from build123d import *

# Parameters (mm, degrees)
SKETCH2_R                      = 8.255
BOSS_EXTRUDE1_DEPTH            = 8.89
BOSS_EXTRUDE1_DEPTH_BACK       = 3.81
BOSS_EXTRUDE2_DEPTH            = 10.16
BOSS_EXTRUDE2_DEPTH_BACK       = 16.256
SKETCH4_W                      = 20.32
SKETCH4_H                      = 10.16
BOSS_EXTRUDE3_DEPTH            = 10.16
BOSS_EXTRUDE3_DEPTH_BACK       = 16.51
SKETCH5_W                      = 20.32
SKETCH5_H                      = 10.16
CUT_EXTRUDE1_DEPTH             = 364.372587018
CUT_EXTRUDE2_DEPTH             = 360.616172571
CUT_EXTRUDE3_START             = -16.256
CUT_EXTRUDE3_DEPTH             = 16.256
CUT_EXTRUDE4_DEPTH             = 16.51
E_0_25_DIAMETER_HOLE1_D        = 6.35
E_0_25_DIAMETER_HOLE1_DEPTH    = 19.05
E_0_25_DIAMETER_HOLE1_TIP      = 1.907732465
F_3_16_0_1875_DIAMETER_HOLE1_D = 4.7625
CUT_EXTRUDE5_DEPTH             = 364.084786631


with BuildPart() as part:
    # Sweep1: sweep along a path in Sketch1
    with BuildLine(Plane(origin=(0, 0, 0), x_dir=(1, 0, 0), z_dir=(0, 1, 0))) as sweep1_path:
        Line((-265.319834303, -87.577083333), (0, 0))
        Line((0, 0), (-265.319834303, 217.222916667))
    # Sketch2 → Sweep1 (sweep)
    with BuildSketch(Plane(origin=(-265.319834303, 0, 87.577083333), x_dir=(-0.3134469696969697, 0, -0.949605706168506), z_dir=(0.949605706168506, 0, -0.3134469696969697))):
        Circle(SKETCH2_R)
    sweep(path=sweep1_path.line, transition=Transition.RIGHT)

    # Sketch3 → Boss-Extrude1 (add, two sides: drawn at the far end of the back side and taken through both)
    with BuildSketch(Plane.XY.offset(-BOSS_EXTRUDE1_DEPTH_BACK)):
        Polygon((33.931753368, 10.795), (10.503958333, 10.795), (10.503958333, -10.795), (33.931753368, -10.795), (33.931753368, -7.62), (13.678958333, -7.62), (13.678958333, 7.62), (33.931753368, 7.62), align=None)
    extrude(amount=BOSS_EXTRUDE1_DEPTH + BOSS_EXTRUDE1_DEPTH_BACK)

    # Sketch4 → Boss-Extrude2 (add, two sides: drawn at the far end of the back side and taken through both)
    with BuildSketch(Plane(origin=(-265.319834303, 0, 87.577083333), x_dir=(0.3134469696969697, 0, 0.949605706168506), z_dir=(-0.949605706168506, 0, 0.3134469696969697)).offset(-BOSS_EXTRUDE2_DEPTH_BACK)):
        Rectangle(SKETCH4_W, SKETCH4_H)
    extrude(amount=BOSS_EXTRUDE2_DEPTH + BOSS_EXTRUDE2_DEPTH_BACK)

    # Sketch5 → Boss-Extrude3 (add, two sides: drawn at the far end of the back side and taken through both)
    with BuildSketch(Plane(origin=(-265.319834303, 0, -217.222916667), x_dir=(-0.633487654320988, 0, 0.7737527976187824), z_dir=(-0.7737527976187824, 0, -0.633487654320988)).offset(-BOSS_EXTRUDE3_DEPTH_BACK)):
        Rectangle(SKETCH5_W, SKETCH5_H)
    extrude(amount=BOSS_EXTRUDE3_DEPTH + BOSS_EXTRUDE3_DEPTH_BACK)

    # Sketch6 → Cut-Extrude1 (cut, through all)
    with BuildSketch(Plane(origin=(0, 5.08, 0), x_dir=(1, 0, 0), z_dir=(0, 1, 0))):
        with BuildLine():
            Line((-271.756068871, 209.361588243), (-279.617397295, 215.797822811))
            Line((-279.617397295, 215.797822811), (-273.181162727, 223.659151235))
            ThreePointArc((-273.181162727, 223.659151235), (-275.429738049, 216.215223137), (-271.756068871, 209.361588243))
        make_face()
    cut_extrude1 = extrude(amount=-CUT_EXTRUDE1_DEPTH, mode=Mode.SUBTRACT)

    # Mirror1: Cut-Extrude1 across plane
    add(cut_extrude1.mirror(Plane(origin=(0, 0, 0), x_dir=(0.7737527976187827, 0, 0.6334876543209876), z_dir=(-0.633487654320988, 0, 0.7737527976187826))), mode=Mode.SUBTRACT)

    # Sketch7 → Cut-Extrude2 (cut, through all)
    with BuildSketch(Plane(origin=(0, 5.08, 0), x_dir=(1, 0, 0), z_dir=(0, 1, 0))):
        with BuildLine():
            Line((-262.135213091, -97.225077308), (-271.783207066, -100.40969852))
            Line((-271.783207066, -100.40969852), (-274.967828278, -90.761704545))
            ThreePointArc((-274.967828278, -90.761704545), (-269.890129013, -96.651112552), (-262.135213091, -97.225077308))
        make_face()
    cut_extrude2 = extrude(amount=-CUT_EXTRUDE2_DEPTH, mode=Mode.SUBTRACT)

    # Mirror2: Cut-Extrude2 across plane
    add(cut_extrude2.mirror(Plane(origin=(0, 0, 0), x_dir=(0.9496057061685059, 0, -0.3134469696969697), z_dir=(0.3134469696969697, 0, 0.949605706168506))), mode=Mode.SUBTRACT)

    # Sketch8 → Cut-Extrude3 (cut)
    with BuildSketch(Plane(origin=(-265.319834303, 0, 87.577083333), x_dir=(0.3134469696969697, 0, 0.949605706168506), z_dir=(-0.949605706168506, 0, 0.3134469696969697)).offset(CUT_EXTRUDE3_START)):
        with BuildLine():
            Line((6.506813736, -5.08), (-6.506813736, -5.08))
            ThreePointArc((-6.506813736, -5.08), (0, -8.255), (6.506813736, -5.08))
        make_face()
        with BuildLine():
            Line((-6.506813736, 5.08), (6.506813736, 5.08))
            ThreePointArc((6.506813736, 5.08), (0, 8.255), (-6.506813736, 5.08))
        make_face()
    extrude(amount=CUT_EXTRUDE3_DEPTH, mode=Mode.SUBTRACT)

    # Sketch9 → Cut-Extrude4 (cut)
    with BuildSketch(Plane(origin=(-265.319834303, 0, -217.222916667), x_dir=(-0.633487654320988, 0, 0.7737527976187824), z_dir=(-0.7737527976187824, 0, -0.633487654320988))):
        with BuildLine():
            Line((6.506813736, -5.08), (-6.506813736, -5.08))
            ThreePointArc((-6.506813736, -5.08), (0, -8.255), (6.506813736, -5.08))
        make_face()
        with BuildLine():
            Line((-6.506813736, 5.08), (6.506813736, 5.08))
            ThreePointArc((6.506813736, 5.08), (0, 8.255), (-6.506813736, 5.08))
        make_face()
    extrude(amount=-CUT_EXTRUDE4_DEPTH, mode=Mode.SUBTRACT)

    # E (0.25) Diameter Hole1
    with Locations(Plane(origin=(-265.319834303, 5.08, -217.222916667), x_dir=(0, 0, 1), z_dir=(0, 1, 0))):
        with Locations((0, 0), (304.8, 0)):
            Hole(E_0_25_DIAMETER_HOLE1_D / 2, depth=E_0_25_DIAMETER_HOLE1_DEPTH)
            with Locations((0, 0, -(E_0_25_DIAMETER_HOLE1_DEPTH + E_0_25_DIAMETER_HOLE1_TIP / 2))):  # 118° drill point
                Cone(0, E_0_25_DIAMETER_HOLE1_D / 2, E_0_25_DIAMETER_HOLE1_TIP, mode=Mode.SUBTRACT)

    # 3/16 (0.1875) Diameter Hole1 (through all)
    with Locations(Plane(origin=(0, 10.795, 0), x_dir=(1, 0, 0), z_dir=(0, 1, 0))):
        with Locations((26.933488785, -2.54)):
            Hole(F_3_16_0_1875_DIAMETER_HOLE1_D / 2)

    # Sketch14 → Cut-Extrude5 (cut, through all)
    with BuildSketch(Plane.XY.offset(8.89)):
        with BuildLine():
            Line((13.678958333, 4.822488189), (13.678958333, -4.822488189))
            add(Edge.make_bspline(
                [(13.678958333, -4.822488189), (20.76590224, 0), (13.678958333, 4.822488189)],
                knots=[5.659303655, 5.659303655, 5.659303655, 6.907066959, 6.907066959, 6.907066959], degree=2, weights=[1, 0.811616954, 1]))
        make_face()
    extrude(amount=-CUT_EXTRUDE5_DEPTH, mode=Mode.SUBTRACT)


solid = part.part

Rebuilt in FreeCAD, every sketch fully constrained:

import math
import FreeCAD as App
import Part
import Sketcher
from FreeCAD import Vector
Q = App.Units.Quantity

doc = App.newDocument("Part")
body = doc.addObject("PartDesign::Body", "Body")

# Sketch on an angled plane
sketch1 = doc.addObject("Sketcher::SketchObject", "Sketch")
body.addObject(sketch1)
sketch1.Placement = App.Placement(Vector(-265.319834, 0, 87.577083), App.Rotation(Vector(-0.31344697, 0, -0.949605706), Vector(0, 1, 0), Vector(0.949605706, 0, -0.31344697), "ZXY"))
sketch1.addGeometry(Part.Circle(Vector(0, 0, 0), Vector(0, 0, 1), 8), False)
sketch1.addConstraint(Sketcher.Constraint("Coincident", 0, 3, -1, 1))
sketch1.addConstraint(Sketcher.Constraint("Diameter", 0, Q("0.65 in")))

# Sketch on XZ plane
sketch2 = doc.addObject("Sketcher::SketchObject", "Sketch001")
body.addObject(sketch2)
sketch2.AttachmentSupport = (doc.XZ_Plane, [""])
sketch2.MapMode = "FlatFace"
sketch2.addGeometry(Part.LineSegment(Vector(-265, 88, 0), Vector(0, 0, 0)), False)
sketch2.addGeometry(Part.LineSegment(Vector(0, 0, 0), Vector(-265, -217, 0)), False)
sketch2.addConstraint(Sketcher.Constraint("Coincident", 0, 2, 1, 1))
sketch2.addConstraint(Sketcher.Constraint("Coincident", 0, 2, -1, 1))
sketch2.addConstraint(Sketcher.Constraint("Vertical", 0, 1, 1, 2))
sketch2.addConstraint(Sketcher.Constraint("Distance", 0, Q("11 in")))
sketch2.addConstraint(Sketcher.Constraint("DistanceY", 1, 2, 0, 1, Q("12 in")))
sketch2.addConstraint(Sketcher.Constraint("Distance", 1, Q("13.5 in")))
doc.recompute()

additivepipe = doc.addObject("PartDesign::AdditivePipe", "AdditivePipe")
body.addObject(additivepipe)
additivepipe.Profile = sketch1
additivepipe.Spine = (sketch2, ["Edge1", "Edge2"])
additivepipe.Transition = "Right corner"

# Sketch on XY plane
sketch3 = doc.addObject("Sketcher::SketchObject", "Sketch002")
body.addObject(sketch3)
sketch3.AttachmentSupport = (doc.XY_Plane, [""])
sketch3.MapMode = "FlatFace"
sketch3.addGeometry(Part.LineSegment(Vector(33.9, 10.8, 0), Vector(10.5, 10.8, 0)), False)
sketch3.addGeometry(Part.LineSegment(Vector(10.5, 10.8, 0), Vector(10.5, -10.8, 0)), False)
sketch3.addGeometry(Part.LineSegment(Vector(10.5, -10.8, 0), Vector(33.9, -10.8, 0)), False)
sketch3.addGeometry(Part.LineSegment(Vector(33.9, -10.8, 0), Vector(33.9, -7.6, 0)), False)
sketch3.addGeometry(Part.LineSegment(Vector(33.9, -7.6, 0), Vector(13.7, -7.6, 0)), False)
sketch3.addGeometry(Part.LineSegment(Vector(13.7, -7.6, 0), Vector(13.7, 7.6, 0)), False)
sketch3.addGeometry(Part.LineSegment(Vector(13.7, 7.6, 0), Vector(33.9, 7.6, 0)), False)
sketch3.addGeometry(Part.LineSegment(Vector(33.9, 7.6, 0), Vector(33.9, 10.8, 0)), False)
sketch3.addConstraint(Sketcher.Constraint("Coincident", 0, 2, 1, 1))
sketch3.addConstraint(Sketcher.Constraint("Coincident", 1, 2, 2, 1))
sketch3.addConstraint(Sketcher.Constraint("Coincident", 2, 2, 3, 1))
sketch3.addConstraint(Sketcher.Constraint("Coincident", 3, 2, 4, 1))
sketch3.addConstraint(Sketcher.Constraint("Coincident", 4, 2, 5, 1))
sketch3.addConstraint(Sketcher.Constraint("Coincident", 5, 2, 6, 1))
sketch3.addConstraint(Sketcher.Constraint("Coincident", 6, 2, 7, 1))
sketch3.addConstraint(Sketcher.Constraint("Coincident", 7, 2, 0, 1))
sketch3.addConstraint(Sketcher.Constraint("Horizontal", 0))
sketch3.addConstraint(Sketcher.Constraint("Vertical", 1))
sketch3.addConstraint(Sketcher.Constraint("Horizontal", 2))
sketch3.addConstraint(Sketcher.Constraint("Vertical", 3))
sketch3.addConstraint(Sketcher.Constraint("Horizontal", 4))
sketch3.addConstraint(Sketcher.Constraint("Vertical", 5))
sketch3.addConstraint(Sketcher.Constraint("Horizontal", 6))
sketch3.addConstraint(Sketcher.Constraint("Vertical", 7))
sketch3.addConstraint(Sketcher.Constraint("Symmetric", 3, 2, 6, 2, -1))
sketch3.addConstraint(Sketcher.Constraint("Equal", 3, 7))
sketch3.addConstraint(Sketcher.Constraint("DistanceY", 5, 1, 5, 2, Q("0.6 in")))
sketch3.addConstraint(Sketcher.Constraint("DistanceY", 1, 2, 1, 1, Q("0.85 in")))
sketch3.addConstraint(Sketcher.Constraint("DistanceX", 1, 2, 4, 2, Q("0.125 in")))
sketch3.addConstraint(Sketcher.Constraint("DistanceX", 0, 2, 0, 1, Q("23.427795 mm")))
sketch3.addConstraint(Sketcher.Constraint("DistanceX", -1, 1, 0, 2, Q("10.503958 mm")))
pad1 = doc.addObject("PartDesign::Pad", "Pad")
body.addObject(pad1)
pad1.Profile = sketch3
pad1.Type = "TwoLengths"
pad1.Length = Q("0.35 in")
pad1.Length2 = Q("0.15 in")

# Sketch on an angled plane
sketch4 = doc.addObject("Sketcher::SketchObject", "Sketch003")
body.addObject(sketch4)
sketch4.Placement = App.Placement(Vector(-265.319834, 0, 87.577083), App.Rotation(Vector(0.31344697, 0, 0.949605706), Vector(0, 1, 0), Vector(-0.949605706, 0, 0.31344697), "ZXY"))
sketch4.addGeometry(Part.LineSegment(Vector(-10, 5, 0), Vector(-10, -5, 0)), False)
sketch4.addGeometry(Part.LineSegment(Vector(-10, -5, 0), Vector(10, -5, 0)), False)
sketch4.addGeometry(Part.LineSegment(Vector(10, -5, 0), Vector(10, 5, 0)), False)
sketch4.addGeometry(Part.LineSegment(Vector(10, 5, 0), Vector(-10, 5, 0)), False)
sketch4.addConstraint(Sketcher.Constraint("Coincident", 0, 2, 1, 1))
sketch4.addConstraint(Sketcher.Constraint("Coincident", 1, 2, 2, 1))
sketch4.addConstraint(Sketcher.Constraint("Coincident", 2, 2, 3, 1))
sketch4.addConstraint(Sketcher.Constraint("Coincident", 3, 2, 0, 1))
sketch4.addConstraint(Sketcher.Constraint("Vertical", 0))
sketch4.addConstraint(Sketcher.Constraint("Horizontal", 1))
sketch4.addConstraint(Sketcher.Constraint("Vertical", 2))
sketch4.addConstraint(Sketcher.Constraint("Horizontal", 3))
sketch4.addConstraint(Sketcher.Constraint("Symmetric", 0, 2, 2, 2, -1, 1))
sketch4.addConstraint(Sketcher.Constraint("DistanceX", 1, 1, 1, 2, Q("0.8 in")))
sketch4.addConstraint(Sketcher.Constraint("DistanceY", 0, 2, 0, 1, Q("0.4 in")))
pad2 = doc.addObject("PartDesign::Pad", "Pad001")
body.addObject(pad2)
pad2.Profile = sketch4
pad2.Type = "TwoLengths"
pad2.Length = Q("0.4 in")
pad2.Length2 = Q("0.64 in")

# Sketch on an angled plane
sketch5 = doc.addObject("Sketcher::SketchObject", "Sketch004")
body.addObject(sketch5)
sketch5.Placement = App.Placement(Vector(-265.319834, 0, -217.222917), App.Rotation(Vector(-0.633487654, 0, 0.773752798), Vector(0, 1, 0), Vector(-0.773752798, 0, -0.633487654), "ZXY"))
sketch5.addGeometry(Part.LineSegment(Vector(-10, 5, 0), Vector(-10, -5, 0)), False)
sketch5.addGeometry(Part.LineSegment(Vector(-10, -5, 0), Vector(10, -5, 0)), False)
sketch5.addGeometry(Part.LineSegment(Vector(10, -5, 0), Vector(10, 5, 0)), False)
sketch5.addGeometry(Part.LineSegment(Vector(10, 5, 0), Vector(-10, 5, 0)), False)
sketch5.addConstraint(Sketcher.Constraint("Coincident", 0, 2, 1, 1))
sketch5.addConstraint(Sketcher.Constraint("Coincident", 1, 2, 2, 1))
sketch5.addConstraint(Sketcher.Constraint("Coincident", 2, 2, 3, 1))
sketch5.addConstraint(Sketcher.Constraint("Coincident", 3, 2, 0, 1))
sketch5.addConstraint(Sketcher.Constraint("Vertical", 0))
sketch5.addConstraint(Sketcher.Constraint("Horizontal", 1))
sketch5.addConstraint(Sketcher.Constraint("Vertical", 2))
sketch5.addConstraint(Sketcher.Constraint("Horizontal", 3))
sketch5.addConstraint(Sketcher.Constraint("Symmetric", 0, 2, 2, 2, -1, 1))
sketch5.addConstraint(Sketcher.Constraint("DistanceX", 1, 1, 1, 2, Q("0.8 in")))
sketch5.addConstraint(Sketcher.Constraint("DistanceY", 0, 2, 0, 1, Q("0.4 in")))
pad3 = doc.addObject("PartDesign::Pad", "Pad002")
body.addObject(pad3)
pad3.Profile = sketch5
pad3.Type = "TwoLengths"
pad3.Length = Q("0.4 in")
pad3.Length2 = Q("0.65 in")

# Sketch on XZ plane
sketch6 = doc.addObject("Sketcher::SketchObject", "Sketch005")
body.addObject(sketch6)
sketch6.AttachmentSupport = (doc.XZ_Plane, [""])
sketch6.MapMode = "FlatFace"
sketch6.AttachmentOffset = App.Placement(Vector(0, 0, -0.2 * 25.4), App.Rotation())
sketch6.addGeometry(Part.LineSegment(Vector(-280, -216, 0), Vector(-272, -209, 0)), False)
sketch6.addGeometry(Part.ArcOfCircle(Part.Circle(Vector(-265, -217, 0), Vector(0, 0, 1), 10), math.radians(129), math.radians(219)), False)
sketch6.addGeometry(Part.LineSegment(Vector(-273, -224, 0), Vector(-280, -216, 0)), False)
sketch6.addConstraint(Sketcher.Constraint("Tangent", 0, 2, 1, 1))
sketch6.addConstraint(Sketcher.Constraint("Tangent", 1, 2, 2, 1))
sketch6.addConstraint(Sketcher.Constraint("Coincident", 2, 2, 0, 1))
sketch6.addConstraint(Sketcher.Constraint("Perpendicular", 0, 2))
sketch6.addConstraint(Sketcher.Constraint("Radius", 1, Q("0.4 in")))
sketch6.addConstraint(Sketcher.Constraint("DistanceX", 0, 2, -1, 1, Q("271.756069 mm")))
sketch6.addConstraint(Sketcher.Constraint("DistanceY", 0, 2, -1, 1, Q("209.361588 mm")))
sketch6.addConstraint(Sketcher.Constraint("DistanceY", 1, 2, -1, 1, Q("223.659151 mm")))
pocket1 = doc.addObject("PartDesign::Pocket", "Pocket")
body.addObject(pocket1)
pocket1.Profile = sketch6
pocket1.Type = "ThroughAll"
pocket1.Reversed = True
doc.recompute()

datumplane = doc.addObject("PartDesign::Plane", "DatumPlane")
body.addObject(datumplane)
datumplane.Placement = App.Placement(Vector(0, 0, 0), App.Rotation(Vector(-0.773752798, 0, -0.633487654), Vector(0, -1, 0), Vector(-0.633487654, 0, 0.773752798), "ZXY"))
mirrored = doc.addObject("PartDesign::Mirrored", "Mirrored")
body.addObject(mirrored)
mirrored.Originals = [pocket1]
mirrored.MirrorPlane = (datumplane, [""])
body.Tip = mirrored

# Sketch on XZ plane
sketch7 = doc.addObject("Sketcher::SketchObject", "Sketch006")
body.addObject(sketch7)
sketch7.AttachmentSupport = (doc.XZ_Plane, [""])
sketch7.MapMode = "FlatFace"
sketch7.AttachmentOffset = App.Placement(Vector(0, 0, -0.2 * 25.4), App.Rotation())
sketch7.addGeometry(Part.LineSegment(Vector(-272, 100, 0), Vector(-262, 97, 0)), False)
sketch7.addGeometry(Part.ArcOfCircle(Part.Circle(Vector(-265, 88, 0), Vector(0, 0, 1), 10), math.radians(72), math.radians(162)), False)
sketch7.addGeometry(Part.LineSegment(Vector(-275, 91, 0), Vector(-272, 100, 0)), False)
sketch7.addConstraint(Sketcher.Constraint("Tangent", 0, 2, 1, 1))
sketch7.addConstraint(Sketcher.Constraint("Tangent", 1, 2, 2, 1))
sketch7.addConstraint(Sketcher.Constraint("Coincident", 2, 2, 0, 1))
sketch7.addConstraint(Sketcher.Constraint("Perpendicular", 0, 2))
sketch7.addConstraint(Sketcher.Constraint("Radius", 1, Q("0.4 in")))
sketch7.addConstraint(Sketcher.Constraint("DistanceY", -1, 1, 2, 2, Q("100.409699 mm")))
sketch7.addConstraint(Sketcher.Constraint("DistanceX", 1, 2, -1, 1, Q("274.967828 mm")))
sketch7.addConstraint(Sketcher.Constraint("DistanceX", 1, 3, 0, 2, Q("3.184621 mm")))
pocket2 = doc.addObject("PartDesign::Pocket", "Pocket001")
body.addObject(pocket2)
pocket2.Profile = sketch7
pocket2.Type = "ThroughAll"
pocket2.Reversed = True
doc.recompute()

datumplane2 = doc.addObject("PartDesign::Plane", "DatumPlane001")
body.addObject(datumplane2)
datumplane2.Placement = App.Placement(Vector(0, 0, 0), App.Rotation(Vector(-0.949605706, 0, 0.31344697), Vector(0, -1, 0), Vector(0.31344697, 0, 0.949605706), "ZXY"))
mirrored2 = doc.addObject("PartDesign::Mirrored", "Mirrored001")
body.addObject(mirrored2)
mirrored2.Originals = [pocket2]
mirrored2.MirrorPlane = (datumplane2, [""])
body.Tip = mirrored2

# Sketch on an angled plane
sketch8 = doc.addObject("Sketcher::SketchObject", "Sketch007")
body.addObject(sketch8)
sketch8.Placement = App.Placement(Vector(-249.883044, 0, 82.481689), App.Rotation(Vector(0.31344697, 0, 0.949605706), Vector(0, 1, 0), Vector(-0.949605706, 0, 0.31344697), "ZXY"))
sketch8.addGeometry(Part.LineSegment(Vector(7, -5, 0), Vector(-7, -5, 0)), False)
sketch8.addGeometry(Part.ArcOfCircle(Part.Circle(Vector(0, 0, 0), Vector(0, 0, 1), 8), math.radians(-142), math.radians(-38)), False)
sketch8.addGeometry(Part.LineSegment(Vector(-7, 5, 0), Vector(7, 5, 0)), False)
sketch8.addGeometry(Part.ArcOfCircle(Part.Circle(Vector(0, 0, 0), Vector(0, 0, 1), 8), math.radians(38), math.radians(142)), False)
sketch8.addConstraint(Sketcher.Constraint("Coincident", 0, 1, 1, 2))
sketch8.addConstraint(Sketcher.Constraint("Coincident", 1, 1, 0, 2))
sketch8.addConstraint(Sketcher.Constraint("Coincident", 2, 1, 3, 2))
sketch8.addConstraint(Sketcher.Constraint("Coincident", 3, 1, 2, 2))
sketch8.addConstraint(Sketcher.Constraint("Horizontal", 0))
sketch8.addConstraint(Sketcher.Constraint("Horizontal", 2))
sketch8.addConstraint(Sketcher.Constraint("Coincident", 1, 3, -1, 1))
sketch8.addConstraint(Sketcher.Constraint("Coincident", 3, 3, -1, 1))
sketch8.addConstraint(Sketcher.Constraint("Equal", 1, 3))
sketch8.addConstraint(Sketcher.Constraint("Vertical", 1, 1, 2, 1))
sketch8.addConstraint(Sketcher.Constraint("Radius", 1, Q("0.325 in")))
sketch8.addConstraint(Sketcher.Constraint("DistanceY", 0, 1, -1, 1, Q("0.2 in")))
pocket3 = doc.addObject("PartDesign::Pocket", "Pocket002")
body.addObject(pocket3)
pocket3.Profile = sketch8
pocket3.Length = Q("0.64 in")
pocket3.Reversed = True

# Sketch on an angled plane
sketch9 = doc.addObject("Sketcher::SketchObject", "Sketch008")
body.addObject(sketch9)
sketch9.Placement = App.Placement(Vector(-265.319834, 0, -217.222917), App.Rotation(Vector(-0.633487654, 0, 0.773752798), Vector(0, 1, 0), Vector(-0.773752798, 0, -0.633487654), "ZXY"))
sketch9.addGeometry(Part.LineSegment(Vector(7, -5, 0), Vector(-7, -5, 0)), False)
sketch9.addGeometry(Part.ArcOfCircle(Part.Circle(Vector(0, 0, 0), Vector(0, 0, 1), 8), math.radians(-142), math.radians(-38)), False)
sketch9.addGeometry(Part.LineSegment(Vector(-7, 5, 0), Vector(7, 5, 0)), False)
sketch9.addGeometry(Part.ArcOfCircle(Part.Circle(Vector(0, 0, 0), Vector(0, 0, 1), 8), math.radians(38), math.radians(142)), False)
sketch9.addConstraint(Sketcher.Constraint("Coincident", 0, 1, 1, 2))
sketch9.addConstraint(Sketcher.Constraint("Coincident", 1, 1, 0, 2))
sketch9.addConstraint(Sketcher.Constraint("Coincident", 2, 1, 3, 2))
sketch9.addConstraint(Sketcher.Constraint("Coincident", 3, 1, 2, 2))
sketch9.addConstraint(Sketcher.Constraint("Horizontal", 0))
sketch9.addConstraint(Sketcher.Constraint("Horizontal", 2))
sketch9.addConstraint(Sketcher.Constraint("Coincident", 1, 3, -1, 1))
sketch9.addConstraint(Sketcher.Constraint("Coincident", 3, 3, -1, 1))
sketch9.addConstraint(Sketcher.Constraint("Equal", 1, 3))
sketch9.addConstraint(Sketcher.Constraint("Vertical", 1, 1, 2, 1))
sketch9.addConstraint(Sketcher.Constraint("Radius", 1, Q("0.325 in")))
sketch9.addConstraint(Sketcher.Constraint("DistanceY", 0, 1, -1, 1, Q("0.2 in")))
pocket4 = doc.addObject("PartDesign::Pocket", "Pocket003")
body.addObject(pocket4)
pocket4.Profile = sketch9
pocket4.Length = Q("0.65 in")

# Sketch on XZ plane
sketch10 = doc.addObject("Sketcher::SketchObject", "Sketch009")
body.addObject(sketch10)
sketch10.AttachmentSupport = (doc.XZ_Plane, [""])
sketch10.MapMode = "FlatFace"
sketch10.AttachmentOffset = App.Placement(Vector(0, 0, -0.2 * 25.4), App.Rotation())
sketch10.addGeometry(Part.Circle(Vector(-265.3, -217.2, 0), Vector(0, 0, 1), 3.2), False)
sketch10.addGeometry(Part.Circle(Vector(-265.3, 87.6, 0), Vector(0, 0, 1), 3.2), False)
sketch10.addConstraint(Sketcher.Constraint("Equal", 0, 1))
sketch10.addConstraint(Sketcher.Constraint("Vertical", 0, 3, 1, 3))
sketch10.addConstraint(Sketcher.Constraint("Diameter", 0, Q("0.25 in")))
sketch10.addConstraint(Sketcher.Constraint("DistanceY", 0, 3, 1, 3, Q("12 in")))
sketch10.addConstraint(Sketcher.Constraint("DistanceX", 0, 3, -1, 1, Q("265.319834 mm")))
sketch10.addConstraint(Sketcher.Constraint("DistanceY", 0, 3, -1, 1, Q("217.222917 mm")))
doc.recompute()
hole = doc.addObject("PartDesign::Hole", "Hole")
body.addObject(hole)
hole.Profile = sketch10
hole.ThreadType = "None"
hole.Diameter = Q("0.25 in")
hole.DepthType = "Dimension"
hole.Depth = Q("0.75 in")
hole.DrillPoint = "Angled"
hole.DrillPointAngle = 118
hole.Reversed = True

# Sketch on XZ plane
sketch11 = doc.addObject("Sketcher::SketchObject", "Sketch010")
body.addObject(sketch11)
sketch11.AttachmentSupport = (doc.XZ_Plane, [""])
sketch11.MapMode = "FlatFace"
sketch11.AttachmentOffset = App.Placement(Vector(0, 0, -0.425 * 25.4), App.Rotation())
sketch11.addGeometry(Part.Circle(Vector(26.9, 2.5, 0), Vector(0, 0, 1), 2.4), False)
sketch11.addConstraint(Sketcher.Constraint("Diameter", 0, Q("0.1875 in")))
sketch11.addConstraint(Sketcher.Constraint("DistanceY", -1, 1, 0, 3, Q("0.1 in")))
sketch11.addConstraint(Sketcher.Constraint("DistanceX", -1, 1, 0, 3, Q("26.933489 mm")))
doc.recompute()
hole2 = doc.addObject("PartDesign::Hole", "Hole001")
body.addObject(hole2)
hole2.Profile = sketch11
hole2.ThreadType = "None"
hole2.Diameter = Q("0.1875 in")
hole2.DepthType = "ThroughAll"
hole2.Reversed = True

# Sketch on XY plane
sketch12 = doc.addObject("Sketcher::SketchObject", "Sketch011")
body.addObject(sketch12)
sketch12.AttachmentSupport = (doc.XY_Plane, [""])
sketch12.MapMode = "FlatFace"
sketch12.AttachmentOffset = App.Placement(Vector(0, 0, 0.35 * 25.4), App.Rotation())
sketch12.addGeometry(Part.LineSegment(Vector(13.678958, 4.822488, 0), Vector(13.678958, -4.822488, 0)), False)
sketch12.addGeometry(Part.BSplineCurve([Vector(13.678958, -4.822488, 0), Vector(20.765902, 0, 0), Vector(13.678958, 4.822488, 0)], [3, 3], [5.659303655, 6.907066959], False, 2, [1, 0.811616954, 1], False), False)
sketch12.addConstraint(Sketcher.Constraint("Block", 1))
sketch12.addConstraint(Sketcher.Constraint("Coincident", 0, 1, 1, 2))
sketch12.addConstraint(Sketcher.Constraint("Coincident", 1, 1, 0, 2))
pocket5 = doc.addObject("PartDesign::Pocket", "Pocket004")
body.addObject(pocket5)
pocket5.Profile = sketch12
pocket5.Type = "ThroughAll"

doc.recompute()
